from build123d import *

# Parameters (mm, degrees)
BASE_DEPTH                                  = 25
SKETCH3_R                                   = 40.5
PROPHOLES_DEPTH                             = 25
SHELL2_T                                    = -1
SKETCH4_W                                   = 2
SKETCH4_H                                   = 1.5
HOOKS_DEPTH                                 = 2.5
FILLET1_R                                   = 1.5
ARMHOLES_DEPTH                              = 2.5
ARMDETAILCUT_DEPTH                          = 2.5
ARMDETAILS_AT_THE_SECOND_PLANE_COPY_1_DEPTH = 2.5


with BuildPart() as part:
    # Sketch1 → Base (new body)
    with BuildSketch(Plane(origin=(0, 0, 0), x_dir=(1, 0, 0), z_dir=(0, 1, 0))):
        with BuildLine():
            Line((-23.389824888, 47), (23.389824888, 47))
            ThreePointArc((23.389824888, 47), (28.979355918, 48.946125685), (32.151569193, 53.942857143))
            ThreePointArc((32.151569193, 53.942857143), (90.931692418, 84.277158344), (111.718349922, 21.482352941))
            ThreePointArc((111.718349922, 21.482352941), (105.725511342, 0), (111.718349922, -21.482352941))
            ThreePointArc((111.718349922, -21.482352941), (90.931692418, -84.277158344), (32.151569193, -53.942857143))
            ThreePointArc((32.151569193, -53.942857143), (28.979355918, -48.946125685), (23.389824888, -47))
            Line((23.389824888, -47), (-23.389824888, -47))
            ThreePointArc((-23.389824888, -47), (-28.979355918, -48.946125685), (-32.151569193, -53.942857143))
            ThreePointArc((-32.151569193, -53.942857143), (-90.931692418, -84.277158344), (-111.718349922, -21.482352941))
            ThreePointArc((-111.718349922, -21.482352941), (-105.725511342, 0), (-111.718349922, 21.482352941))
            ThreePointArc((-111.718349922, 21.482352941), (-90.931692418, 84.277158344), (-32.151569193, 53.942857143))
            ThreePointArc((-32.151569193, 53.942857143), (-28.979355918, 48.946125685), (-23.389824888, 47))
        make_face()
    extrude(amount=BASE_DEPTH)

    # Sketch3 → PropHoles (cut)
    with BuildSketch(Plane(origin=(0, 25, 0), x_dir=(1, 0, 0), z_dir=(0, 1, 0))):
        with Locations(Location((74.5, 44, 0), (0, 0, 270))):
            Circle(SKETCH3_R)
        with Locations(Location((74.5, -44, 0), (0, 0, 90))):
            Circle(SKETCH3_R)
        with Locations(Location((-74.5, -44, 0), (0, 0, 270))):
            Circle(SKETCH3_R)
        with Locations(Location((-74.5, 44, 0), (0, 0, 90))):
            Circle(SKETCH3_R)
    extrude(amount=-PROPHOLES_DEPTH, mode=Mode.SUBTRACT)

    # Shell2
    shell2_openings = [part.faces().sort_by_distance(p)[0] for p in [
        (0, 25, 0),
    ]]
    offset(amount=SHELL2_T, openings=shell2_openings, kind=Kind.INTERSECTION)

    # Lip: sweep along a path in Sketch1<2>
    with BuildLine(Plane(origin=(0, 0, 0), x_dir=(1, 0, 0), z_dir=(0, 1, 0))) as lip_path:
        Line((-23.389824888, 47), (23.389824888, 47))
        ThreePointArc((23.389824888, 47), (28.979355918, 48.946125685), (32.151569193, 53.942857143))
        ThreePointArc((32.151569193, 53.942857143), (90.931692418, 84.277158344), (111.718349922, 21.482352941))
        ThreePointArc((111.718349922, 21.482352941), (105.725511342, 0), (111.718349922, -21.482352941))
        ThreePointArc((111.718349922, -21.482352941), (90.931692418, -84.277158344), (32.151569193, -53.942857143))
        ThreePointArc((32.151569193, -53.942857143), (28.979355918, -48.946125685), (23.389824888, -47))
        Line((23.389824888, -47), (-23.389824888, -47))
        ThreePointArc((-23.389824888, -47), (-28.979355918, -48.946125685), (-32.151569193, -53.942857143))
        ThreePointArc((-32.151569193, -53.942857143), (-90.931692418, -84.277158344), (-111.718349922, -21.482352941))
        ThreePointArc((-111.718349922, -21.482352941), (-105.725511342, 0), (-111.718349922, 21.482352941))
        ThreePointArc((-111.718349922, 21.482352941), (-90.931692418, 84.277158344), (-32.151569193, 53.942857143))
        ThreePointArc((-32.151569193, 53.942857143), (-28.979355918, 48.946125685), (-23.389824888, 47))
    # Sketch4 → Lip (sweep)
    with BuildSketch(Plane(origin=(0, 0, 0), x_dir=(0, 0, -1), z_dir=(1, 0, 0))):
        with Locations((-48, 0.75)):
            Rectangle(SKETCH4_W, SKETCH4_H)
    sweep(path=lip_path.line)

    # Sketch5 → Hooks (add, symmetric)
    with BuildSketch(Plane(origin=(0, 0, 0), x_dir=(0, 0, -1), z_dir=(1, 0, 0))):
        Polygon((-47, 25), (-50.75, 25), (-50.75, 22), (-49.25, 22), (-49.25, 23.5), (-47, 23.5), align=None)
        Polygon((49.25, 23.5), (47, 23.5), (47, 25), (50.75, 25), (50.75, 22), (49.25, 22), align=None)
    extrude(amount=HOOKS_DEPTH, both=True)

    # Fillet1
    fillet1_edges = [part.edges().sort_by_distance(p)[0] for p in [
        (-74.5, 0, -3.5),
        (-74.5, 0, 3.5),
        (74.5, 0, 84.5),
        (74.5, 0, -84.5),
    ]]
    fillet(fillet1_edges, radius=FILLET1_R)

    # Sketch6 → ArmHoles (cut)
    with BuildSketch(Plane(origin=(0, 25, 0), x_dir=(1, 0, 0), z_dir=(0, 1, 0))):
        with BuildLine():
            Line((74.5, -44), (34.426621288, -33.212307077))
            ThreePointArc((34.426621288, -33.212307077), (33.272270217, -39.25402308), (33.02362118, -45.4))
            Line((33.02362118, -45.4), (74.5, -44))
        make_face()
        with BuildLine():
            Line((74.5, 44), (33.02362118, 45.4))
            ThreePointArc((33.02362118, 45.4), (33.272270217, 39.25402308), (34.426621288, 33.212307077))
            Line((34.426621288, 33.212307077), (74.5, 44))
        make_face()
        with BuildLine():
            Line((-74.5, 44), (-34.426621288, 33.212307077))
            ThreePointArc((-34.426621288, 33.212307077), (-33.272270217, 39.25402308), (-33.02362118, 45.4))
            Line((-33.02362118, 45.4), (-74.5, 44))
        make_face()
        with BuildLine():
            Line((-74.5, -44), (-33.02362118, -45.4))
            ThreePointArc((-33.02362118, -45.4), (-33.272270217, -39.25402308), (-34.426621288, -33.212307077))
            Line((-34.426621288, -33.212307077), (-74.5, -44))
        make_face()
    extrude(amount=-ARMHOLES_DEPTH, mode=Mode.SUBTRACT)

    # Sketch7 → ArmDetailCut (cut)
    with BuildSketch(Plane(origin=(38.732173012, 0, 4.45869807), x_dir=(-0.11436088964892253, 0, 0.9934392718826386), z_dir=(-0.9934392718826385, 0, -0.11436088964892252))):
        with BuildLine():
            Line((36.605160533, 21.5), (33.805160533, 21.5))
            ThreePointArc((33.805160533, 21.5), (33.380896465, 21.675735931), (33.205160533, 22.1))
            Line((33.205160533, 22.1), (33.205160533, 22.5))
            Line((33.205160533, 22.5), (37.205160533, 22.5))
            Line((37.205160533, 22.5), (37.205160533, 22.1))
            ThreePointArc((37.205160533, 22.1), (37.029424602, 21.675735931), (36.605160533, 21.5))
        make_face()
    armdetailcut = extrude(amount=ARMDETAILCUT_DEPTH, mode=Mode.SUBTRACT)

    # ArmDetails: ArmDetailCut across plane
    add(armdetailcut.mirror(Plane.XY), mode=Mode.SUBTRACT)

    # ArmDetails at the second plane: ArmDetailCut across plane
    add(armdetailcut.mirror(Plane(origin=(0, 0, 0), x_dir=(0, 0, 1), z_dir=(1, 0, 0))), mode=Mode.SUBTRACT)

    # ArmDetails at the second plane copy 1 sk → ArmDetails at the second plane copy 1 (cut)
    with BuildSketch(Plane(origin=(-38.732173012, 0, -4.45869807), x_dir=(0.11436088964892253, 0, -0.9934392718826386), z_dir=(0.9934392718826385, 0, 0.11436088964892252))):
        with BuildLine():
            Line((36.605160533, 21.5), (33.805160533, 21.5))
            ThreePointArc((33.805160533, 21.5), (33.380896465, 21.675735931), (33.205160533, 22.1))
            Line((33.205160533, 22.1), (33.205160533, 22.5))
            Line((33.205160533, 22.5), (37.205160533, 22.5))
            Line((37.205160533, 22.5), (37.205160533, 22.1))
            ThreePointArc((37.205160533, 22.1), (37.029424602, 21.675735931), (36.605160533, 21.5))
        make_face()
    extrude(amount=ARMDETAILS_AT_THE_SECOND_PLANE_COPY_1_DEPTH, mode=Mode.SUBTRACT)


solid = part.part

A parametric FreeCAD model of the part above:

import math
import FreeCAD as App
import Part
import Sketcher

V = App.Vector
Q = App.Units.Quantity


def edges_at(feature, points):
    """Names of the edges that pass closest to the given points."""
    edges = feature.Shape.Edges
    near = lambda p: min(range(len(edges)), key=lambda i: edges[i].distToShape(Part.Vertex(*p))[0])
    return sorted({f"Edge{near(p) + 1}" for p in points})


def faces_at(feature, points):
    """Names of the faces that lie closest to the given points."""
    faces = feature.Shape.Faces
    near = lambda p: min(range(len(faces)), key=lambda i: faces[i].distToShape(Part.Vertex(*p))[0])
    return sorted({f"Face{near(p) + 1}" for p in points})


def add_polygon(sketch, points):
    """Adds a closed chain of lines whose ends are joined by coincident constraints."""
    first, n = sketch.GeometryCount, len(points)
    for a, b in zip(points, points[1:] + points[:1]):
        sketch.addGeometry(Part.LineSegment(App.Vector(*a, 0), App.Vector(*b, 0)), False)
    for i in range(n):
        sketch.addConstraint(Sketcher.Constraint("Coincident", first + i, 2, first + (i + 1) % n, 1))

doc = App.newDocument("Part")
body = doc.addObject("PartDesign::Body", "Body")

# Sketch on XZ plane
sketch1 = doc.addObject("Sketcher::SketchObject", "Sketch")
body.addObject(sketch1)
sketch1.AttachmentSupport = (doc.XZ_Plane, [""])
sketch1.MapMode = "FlatFace"
sketch1.addGeometry([
    Part.LineSegment(V(23.389825, -47, 0), V(-23.389825, -47, 0)),  # 0
    Part.ArcOfCircle(Part.Circle(V(-23.389825, -56, 0), V(0, 0, 1), 9), math.radians(90), math.radians(166.78702)),  # 1
    Part.ArcOfCircle(Part.Circle(V(-74.5, -44, 0), V(0, 0, 1), 43.5), math.radians(148.825447), math.radians(346.78702)),  # 2
    Part.ArcOfCircle(Part.Circle(V(-147.225511, 0, 0), V(0, 0, 1), 41.5), math.radians(-31.174553), math.radians(31.174553)),  # 3
    Part.ArcOfCircle(Part.Circle(V(-74.5, 44, 0), V(0, 0, 1), 43.5), math.radians(13.21298), math.radians(211.174553)),  # 4
    Part.ArcOfCircle(Part.Circle(V(-23.389825, 56, 0), V(0, 0, 1), 9), math.radians(-166.78702), math.radians(-90)),  # 5
    Part.LineSegment(V(-23.389825, 47, 0), V(23.389825, 47, 0)),  # 6
    Part.ArcOfCircle(Part.Circle(V(23.389825, 56, 0), V(0, 0, 1), 9), math.radians(-90), math.radians(-13.21298)),  # 7
    Part.ArcOfCircle(Part.Circle(V(74.5, 44, 0), V(0, 0, 1), 43.5), math.radians(-31.174553), math.radians(166.78702)),  # 8
    Part.ArcOfCircle(Part.Circle(V(147.225511, 0, 0), V(0, 0, 1), 41.5), math.radians(148.825447), math.radians(211.174553)),  # 9
    Part.ArcOfCircle(Part.Circle(V(74.5, -44, 0), V(0, 0, 1), 43.5), math.radians(-166.78702), math.radians(31.174553)),  # 10
    Part.ArcOfCircle(Part.Circle(V(23.389825, -56, 0), V(0, 0, 1), 9), math.radians(13.21298), math.radians(90)),  # 11
], False)
sketch1.addConstraint([
    Sketcher.Constraint("Tangent", 0, 2, 1, 1),
    Sketcher.Constraint("Tangent", 1, 2, 2, 2),
    Sketcher.Constraint("Tangent", 2, 1, 3, 1),
    Sketcher.Constraint("Tangent", 3, 2, 4, 2),
    Sketcher.Constraint("Tangent", 4, 1, 5, 1),
    Sketcher.Constraint("Tangent", 5, 2, 6, 1),
    Sketcher.Constraint("Tangent", 6, 2, 7, 1),
    Sketcher.Constraint("Tangent", 7, 2, 8, 2),
    Sketcher.Constraint("Tangent", 8, 1, 9, 1),
    Sketcher.Constraint("Tangent", 9, 2, 10, 2),
    Sketcher.Constraint("Tangent", 10, 1, 11, 1),
    Sketcher.Constraint("Tangent", 11, 2, 0, 1),
    Sketcher.Constraint("Horizontal", 0),
    Sketcher.Constraint("Horizontal", 6),
    Sketcher.Constraint("Equal", 2, 4),
    Sketcher.Constraint("Equal", 1, 5),
    Sketcher.Constraint("Equal", 5, 7),
    Sketcher.Constraint("Equal", 4, 8),
    Sketcher.Constraint("Equal", 3, 9),
    Sketcher.Constraint("Equal", 8, 10),
    Sketcher.Constraint("Equal", 7, 11),
    Sketcher.Constraint("Symmetric", 1, 3, 7, 3, -1, 1),
    Sketcher.Constraint("Symmetric", 3, 3, 9, 3, -1, 1),
    Sketcher.Constraint("Symmetric", 4, 3, 8, 3, -2),
    Sketcher.Constraint("Horizontal", 2, 3, 10, 3),
    Sketcher.Constraint("Radius", 1, Q("9 mm")),
    Sketcher.Constraint("Radius", 2, Q("43.5 mm")),
    Sketcher.Constraint("Radius", 3, Q("41.5 mm")),
    Sketcher.Constraint("DistanceY", 1, 3, -1, 1, Q("56 mm")),
    Sketcher.Constraint("DistanceY", 2, 3, -1, 1, Q("44 mm")),
    Sketcher.Constraint("DistanceX", 4, 3, 8, 3, Q("149 mm")),
])
pad1 = doc.addObject("PartDesign::Pad", "Pad")
body.addObject(pad1)
pad1.Profile = sketch1
pad1.Length = 25
pad1.Reversed = True

# Sketch on XZ plane
sketch2 = doc.addObject("Sketcher::SketchObject", "Sketch001")
body.addObject(sketch2)
sketch2.AttachmentSupport = (doc.XZ_Plane, [""])
sketch2.MapMode = "FlatFace"
sketch2.AttachmentOffset = App.Placement(V(0, 0, -25), App.Rotation())
sketch2.addGeometry([
    Part.Circle(V(74.5, -44, 0), V(0, 0, 1), 40.5),
    Part.Circle(V(74.5, 44, 0), V(0, 0, 1), 40.5),
    Part.Circle(V(-74.5, 44, 0), V(0, 0, 1), 40.5),
    Part.Circle(V(-74.5, -44, 0), V(0, 0, 1), 40.5),
], False)
sketch2.addConstraint([
    Sketcher.Constraint("Equal", 0, 1),
    Sketcher.Constraint("Equal", 1, 2),
    Sketcher.Constraint("Equal", 2, 3),
    Sketcher.Constraint("Symmetric", 0, 3, 2, 3, -1, 1),
    Sketcher.Constraint("Symmetric", 1, 3, 3, 3, -1, 1),
    Sketcher.Constraint("Symmetric", 1, 3, 2, 3, -2),
    Sketcher.Constraint("Diameter", 0, Q("81 mm")),
    Sketcher.Constraint("DistanceY", 0, 3, -1, 1, Q("44 mm")),
    Sketcher.Constraint("DistanceX", 2, 3, 1, 3, Q("149 mm")),
])
pocket1 = doc.addObject("PartDesign::Pocket", "Pocket")
body.addObject(pocket1)
pocket1.Profile = sketch2
pocket1.Length = 25
pocket1.Reversed = True
doc.recompute()

thickness = doc.addObject("PartDesign::Thickness", "Thickness")
body.addObject(thickness)
thickness.Base = (pocket1, faces_at(pocket1, [(0, 25, 0)]))
thickness.Value = 1
thickness.Reversed = True
thickness.Join = "Intersection"

# Sketch on YZ plane
sketch3 = doc.addObject("Sketcher::SketchObject", "Sketch002")
body.addObject(sketch3)
sketch3.AttachmentSupport = (doc.YZ_Plane, [""])
sketch3.MapMode = "FlatFace"
add_polygon(sketch3, [(1.5, 49), (0, 49), (0, 47), (1.5, 47)])  # lines 0-3
sketch3.addConstraint([
    Sketcher.Constraint("Horizontal", 0),
    Sketcher.Constraint("Vertical", 1),
    Sketcher.Constraint("Horizontal", 2),
    Sketcher.Constraint("Vertical", 3),
    Sketcher.Constraint("PointOnObject", 0, 2, -2),
    Sketcher.Constraint("DistanceY", 1, 2, 1, 1, Q("2 mm")),
    Sketcher.Constraint("DistanceX", 0, 2, 0, 1, Q("1.5 mm")),
    Sketcher.Constraint("DistanceY", -1, 1, 0, 2, Q("49 mm")),
])

# Sketch on XZ plane
sketch4 = doc.addObject("Sketcher::SketchObject", "Sketch003")
body.addObject(sketch4)
sketch4.AttachmentSupport = (doc.XZ_Plane, [""])
sketch4.MapMode = "FlatFace"
sketch4.addGeometry([
    Part.LineSegment(V(-23.389825, -47, 0), V(23.389825, -47, 0)),  # 0
    Part.ArcOfCircle(Part.Circle(V(23.389825, -56, 0), V(0, 0, 1), 9), math.radians(13.21298), math.radians(90)),  # 1
    Part.ArcOfCircle(Part.Circle(V(74.5, -44, 0), V(0, 0, 1), 43.5), math.radians(-166.78702), math.radians(31.174553)),  # 2
    Part.ArcOfCircle(Part.Circle(V(147.225511, 0, 0), V(0, 0, 1), 41.5), math.radians(148.825447), math.radians(211.174553)),  # 3
    Part.ArcOfCircle(Part.Circle(V(74.5, 44, 0), V(0, 0, 1), 43.5), math.radians(-31.174553), math.radians(166.78702)),  # 4
    Part.ArcOfCircle(Part.Circle(V(23.389825, 56, 0), V(0, 0, 1), 9), math.radians(-90), math.radians(-13.21298)),  # 5
    Part.LineSegment(V(23.389825, 47, 0), V(-23.389825, 47, 0)),  # 6
    Part.ArcOfCircle(Part.Circle(V(-23.389825, 56, 0), V(0, 0, 1), 9), math.radians(-166.78702), math.radians(-90)),  # 7
    Part.ArcOfCircle(Part.Circle(V(-74.5, 44, 0), V(0, 0, 1), 43.5), math.radians(13.21298), math.radians(211.174553)),  # 8
    Part.ArcOfCircle(Part.Circle(V(-147.225511, 0, 0), V(0, 0, 1), 41.5), math.radians(-31.174553), math.radians(31.174553)),  # 9
    Part.ArcOfCircle(Part.Circle(V(-74.5, -44, 0), V(0, 0, 1), 43.5), math.radians(148.825447), math.radians(346.78702)),  # 10
    Part.ArcOfCircle(Part.Circle(V(-23.389825, -56, 0), V(0, 0, 1), 9), math.radians(90), math.radians(166.78702)),  # 11
], False)
sketch4.addConstraint([
    Sketcher.Constraint("Tangent", 0, 2, 1, 2),
    Sketcher.Constraint("Tangent", 1, 1, 2, 1),
    Sketcher.Constraint("Tangent", 2, 2, 3, 2),
    Sketcher.Constraint("Tangent", 3, 1, 4, 1),
    Sketcher.Constraint("Tangent", 4, 2, 5, 2),
    Sketcher.Constraint("Tangent", 5, 1, 6, 1),
    Sketcher.Constraint("Tangent", 6, 2, 7, 2),
    Sketcher.Constraint("Tangent", 7, 1, 8, 1),
    Sketcher.Constraint("Tangent", 8, 2, 9, 2),
    Sketcher.Constraint("Tangent", 9, 1, 10, 1),
    Sketcher.Constraint("Tangent", 10, 2, 11, 2),
    Sketcher.Constraint("Tangent", 11, 1, 0, 1),
    Sketcher.Constraint("Horizontal", 0),
    Sketcher.Constraint("Horizontal", 6),
    Sketcher.Constraint("Equal", 2, 4),
    Sketcher.Constraint("Equal", 1, 5),
    Sketcher.Constraint("Equal", 5, 7),
    Sketcher.Constraint("Equal", 4, 8),
    Sketcher.Constraint("Equal", 3, 9),
    Sketcher.Constraint("Equal", 8, 10),
    Sketcher.Constraint("Equal", 7, 11),
    Sketcher.Constraint("Symmetric", 1, 3, 7, 3, -1, 1),
    Sketcher.Constraint("Symmetric", 3, 3, 9, 3, -1, 1),
    Sketcher.Constraint("Symmetric", 4, 3, 8, 3, -2),
    Sketcher.Constraint("Horizontal", 2, 3, 10, 3),
    Sketcher.Constraint("Radius", 1, Q("9 mm")),
    Sketcher.Constraint("Radius", 2, Q("43.5 mm")),
    Sketcher.Constraint("Radius", 3, Q("41.5 mm")),
    Sketcher.Constraint("DistanceY", 1, 3, -1, 1, Q("56 mm")),
    Sketcher.Constraint("DistanceY", 2, 3, -1, 1, Q("44 mm")),
    Sketcher.Constraint("DistanceX", 8, 3, 4, 3, Q("149 mm")),
])
doc.recompute()

additivepipe = doc.addObject("PartDesign::AdditivePipe", "AdditivePipe")
body.addObject(additivepipe)
additivepipe.Profile = sketch3
additivepipe.Spine = (sketch4, ["Edge1", "Edge2", "Edge3", "Edge4", "Edge5", "Edge6", "Edge7", "Edge8", "Edge9", "Edge10", "Edge11", "Edge12"])

# Sketch on YZ plane
sketch5 = doc.addObject("Sketcher::SketchObject", "Sketch004")
body.addObject(sketch5)
sketch5.AttachmentSupport = (doc.YZ_Plane, [""])
sketch5.MapMode = "FlatFace"
add_polygon(sketch5, [(25, 47), (25, 50.75), (22, 50.75), (22, 49.25), (23.5, 49.25), (23.5, 47)])  # lines 0-5
add_polygon(sketch5, [(23.5, -47), (23.5, -49.25), (22, -49.25), (22, -50.75), (25, -50.75), (25, -47)])  # lines 6-11
sketch5.addConstraint([
    Sketcher.Constraint("Vertical", 0),
    Sketcher.Constraint("Horizontal", 1),
    Sketcher.Constraint("Vertical", 2),
    Sketcher.Constraint("Horizontal", 3),
    Sketcher.Constraint("Vertical", 4),
    Sketcher.Constraint("Horizontal", 5),
    Sketcher.Constraint("Vertical", 6),
    Sketcher.Constraint("Horizontal", 7),
    Sketcher.Constraint("Vertical", 8),
    Sketcher.Constraint("Horizontal", 9),
    Sketcher.Constraint("Vertical", 10),
    Sketcher.Constraint("Horizontal", 11),
    Sketcher.Constraint("Symmetric", 3, 2, 6, 2, -1),
    Sketcher.Constraint("Symmetric", 1, 2, 8, 2, -1),
    Sketcher.Constraint("Symmetric", 5, 2, 10, 2, -1),
    Sketcher.Constraint("Equal", 3, 5),
    Sketcher.Constraint("Equal", 11, 2),
    Sketcher.Constraint("DistanceX", 1, 2, 1, 1, Q("3 mm")),
    Sketcher.Constraint("DistanceX", -1, 1, 0, 2, Q("25 mm")),
    Sketcher.Constraint("DistanceY", -1, 1, 4, 2, Q("47 mm")),
    Sketcher.Constraint("DistanceY", 6, 2, 0, 2, Q("100 mm")),
])
pad2 = doc.addObject("PartDesign::Pad", "Pad001")
body.addObject(pad2)
pad2.Profile = sketch5
pad2.Length = 5
pad2.Midplane = True
doc.recompute()

fillet = doc.addObject("PartDesign::Fillet", "Fillet")
body.addObject(fillet)
fillet.Base = (pad2, edges_at(pad2, [
    (-74.5, 0, -3.5),
    (-74.5, 0, 3.5),
    (74.5, 0, 84.5),
    (74.5, 0, -84.5),
]))
fillet.Radius = 1.5

# Sketch on XZ plane
sketch6 = doc.addObject("Sketcher::SketchObject", "Sketch005")
body.addObject(sketch6)
sketch6.AttachmentSupport = (doc.XZ_Plane, [""])
sketch6.MapMode = "FlatFace"
sketch6.AttachmentOffset = App.Placement(V(0, 0, -25), App.Rotation())
sketch6.addGeometry([
    Part.LineSegment(V(74.5, 44, 0), V(34.426621, 33.212307, 0)),  # 0
    Part.ArcOfCircle(Part.Circle(V(74.5, 44, 0), V(0, 0, 1), 41.5), math.radians(178.066764), math.radians(195.066764)),  # 1
    Part.LineSegment(V(33.023621, 45.4, 0), V(74.5, 44, 0)),  # 2
    Part.LineSegment(V(74.5, -44, 0), V(33.023621, -45.4, 0)),  # 3
    Part.ArcOfCircle(Part.Circle(V(74.5, -44, 0), V(0, 0, 1), 41.5), math.radians(164.933236), math.radians(181.933236)),  # 4
    Part.LineSegment(V(34.426621, -33.212307, 0), V(74.5, -44, 0)),  # 5
    Part.LineSegment(V(-74.5, -44, 0), V(-34.426621, -33.212307, 0)),  # 6
    Part.ArcOfCircle(Part.Circle(V(-74.5, -44, 0), V(0, 0, 1), 41.5), math.radians(-1.933236), math.radians(15.066764)),  # 7
    Part.LineSegment(V(-33.023621, -45.4, 0), V(-74.5, -44, 0)),  # 8
    Part.LineSegment(V(-74.5, 44, 0), V(-33.023621, 45.4, 0)),  # 9
    Part.ArcOfCircle(Part.Circle(V(-74.5, 44, 0), V(0, 0, 1), 41.5), math.radians(-15.066764), math.radians(1.933236)),  # 10
    Part.LineSegment(V(-34.426621, 33.212307, 0), V(-74.5, 44, 0)),  # 11
], False)
sketch6.addConstraint([
    Sketcher.Constraint("Coincident", 0, 2, 1, 2),
    Sketcher.Constraint("Coincident", 1, 1, 2, 1),
    Sketcher.Constraint("Coincident", 2, 2, 0, 1),
    Sketcher.Constraint("Coincident", 3, 2, 4, 2),
    Sketcher.Constraint("Coincident", 4, 1, 5, 1),
    Sketcher.Constraint("Coincident", 5, 2, 3, 1),
    Sketcher.Constraint("Coincident", 6, 2, 7, 2),
    Sketcher.Constraint("Coincident", 7, 1, 8, 1),
    Sketcher.Constraint("Coincident", 8, 2, 6, 1),
    Sketcher.Constraint("Coincident", 9, 2, 10, 2),
    Sketcher.Constraint("Coincident", 10, 1, 11, 1),
    Sketcher.Constraint("Coincident", 11, 2, 9, 1),
    Sketcher.Constraint("Coincident", 2, 2, 1, 3),
    Sketcher.Constraint("Coincident", 5, 2, 4, 3),
    Sketcher.Constraint("Coincident", 8, 2, 7, 3),
    Sketcher.Constraint("Coincident", 11, 2, 10, 3),
    Sketcher.Constraint("Equal", 1, 4),
    Sketcher.Constraint("Equal", 4, 7),
    Sketcher.Constraint("Equal", 7, 10),
    Sketcher.Constraint("Symmetric", 1, 3, 7, 3, -1, 1),
    Sketcher.Constraint("Symmetric", 4, 3, 10, 3, -1, 1),
    Sketcher.Constraint("Symmetric", 4, 3, 7, 3, -2),
    Sketcher.Constraint("Parallel", 0, 6),
    Sketcher.Constraint("Parallel", 2, 8),
    Sketcher.Constraint("Parallel", 3, 9),
    Sketcher.Constraint("Parallel", 5, 11),
    Sketcher.Constraint("Horizontal", 4, 1, 6, 2),
    Sketcher.Constraint("Horizontal", 3, 2, 7, 1),
    Sketcher.Constraint("Radius", 1, Q("41.5 mm")),
    Sketcher.Constraint("DistanceY", -1, 1, 1, 3, Q("44 mm")),
    Sketcher.Constraint("DistanceX", 7, 3, 4, 3, Q("149 mm")),
    Sketcher.Constraint("DistanceY", -1, 1, 1, 1, Q("45.4 mm")),
    Sketcher.Constraint("DistanceX", 1, 1, 0, 2, Q("1.403 mm")),
])
pocket2 = doc.addObject("PartDesign::Pocket", "Pocket001")
body.addObject(pocket2)
pocket2.Profile = sketch6
pocket2.Length = 2.5
pocket2.Reversed = True

# Sketch on an angled plane
sketch7 = doc.addObject("Sketcher::SketchObject", "Sketch006")
body.addObject(sketch7)
sketch7.Placement = App.Placement(V(38.732173, 0, 4.458698), App.Rotation(V(-0.11436089, 0, 0.993439272), V(0, 1, 0), V(-0.993439272, 0, -0.11436089), "ZXY"))
sketch7.addGeometry([
    Part.LineSegment(V(33.805161, 21.5, 0), V(36.605161, 21.5, 0)),  # 0
    Part.ArcOfCircle(Part.Circle(V(36.605161, 22.1, 0), V(0, 0, 1), 0.6), math.radians(-90), math.radians(0)),  # 1
    Part.LineSegment(V(37.205161, 22.1, 0), V(37.205161, 22.5, 0)),  # 2
    Part.LineSegment(V(37.205161, 22.5, 0), V(33.205161, 22.5, 0)),  # 3
    Part.LineSegment(V(33.205161, 22.5, 0), V(33.205161, 22.1, 0)),  # 4
    Part.ArcOfCircle(Part.Circle(V(33.805161, 22.1, 0), V(0, 0, 1), 0.6), math.radians(-180), math.radians(-90)),  # 5
], False)
sketch7.addConstraint([
    Sketcher.Constraint("Tangent", 0, 2, 1, 1),
    Sketcher.Constraint("Tangent", 1, 2, 2, 1),
    Sketcher.Constraint("Coincident", 2, 2, 3, 1),
    Sketcher.Constraint("Coincident", 3, 2, 4, 1),
    Sketcher.Constraint("Tangent", 4, 2, 5, 1),
    Sketcher.Constraint("Tangent", 5, 2, 0, 1),
    Sketcher.Constraint("Horizontal", 0),
    Sketcher.Constraint("Vertical", 2),
    Sketcher.Constraint("Horizontal", 3),
    Sketcher.Constraint("Vertical", 4),
    Sketcher.Constraint("Equal", 1, 5),
    Sketcher.Constraint("Radius", 1, Q("0.6 mm")),
    Sketcher.Constraint("DistanceX", 3, 2, 3, 1, Q("4 mm")),
    Sketcher.Constraint("DistanceY", 2, 1, 2, 2, Q("0.4 mm")),
    Sketcher.Constraint("DistanceY", -1, 1, 1, 3, Q("22.1 mm")),
    Sketcher.Constraint("DistanceX", -1, 1, 1, 3, Q("36.605161 mm")),
])
pocket3 = doc.addObject("PartDesign::Pocket", "Pocket002")
body.addObject(pocket3)
pocket3.Profile = sketch7
pocket3.Length = 2.5
pocket3.Reversed = True
doc.recompute()

mirrored = doc.addObject("PartDesign::Mirrored", "Mirrored")
body.addObject(mirrored)
mirrored.Originals = [pocket3]
mirrored.MirrorPlane = (doc.XY_Plane, [""])
body.Tip = mirrored
doc.recompute()

mirrored2 = doc.addObject("PartDesign::Mirrored", "Mirrored001")
body.addObject(mirrored2)
mirrored2.Originals = [pocket3]
mirrored2.MirrorPlane = (doc.YZ_Plane, [""])
body.Tip = mirrored2

# Sketch on an angled plane
sketch8 = doc.addObject("Sketcher::SketchObject", "Sketch007")
body.addObject(sketch8)
sketch8.Placement = App.Placement(V(-38.732173, 0, -4.458698), App.Rotation(V(0.11436089, 0, -0.993439272), V(0, 1, 0), V(0.993439272, 0, 0.11436089), "ZXY"))
sketch8.addGeometry([
    Part.LineSegment(V(33.805161, 21.5, 0), V(36.605161, 21.5, 0)),  # 0
    Part.ArcOfCircle(Part.Circle(V(36.605161, 22.1, 0), V(0, 0, 1), 0.6), math.radians(-90), math.radians(0)),  # 1
    Part.LineSegment(V(37.205161, 22.1, 0), V(37.205161, 22.5, 0)),  # 2
    Part.LineSegment(V(37.205161, 22.5, 0), V(33.205161, 22.5, 0)),  # 3
    Part.LineSegment(V(33.205161, 22.5, 0), V(33.205161, 22.1, 0)),  # 4
    Part.ArcOfCircle(Part.Circle(V(33.805161, 22.1, 0), V(0, 0, 1), 0.6), math.radians(-180), math.radians(-90)),  # 5
], False)
sketch8.addConstraint([
    Sketcher.Constraint("Tangent", 0, 2, 1, 1),
    Sketcher.Constraint("Tangent", 1, 2, 2, 1),
    Sketcher.Constraint("Coincident", 2, 2, 3, 1),
    Sketcher.Constraint("Coincident", 3, 2, 4, 1),
    Sketcher.Constraint("Tangent", 4, 2, 5, 1),
    Sketcher.Constraint("Tangent", 5, 2, 0, 1),
    Sketcher.Constraint("Horizontal", 0),
    Sketcher.Constraint("Vertical", 2),
    Sketcher.Constraint("Horizontal", 3),
    Sketcher.Constraint("Vertical", 4),
    Sketcher.Constraint("Equal", 1, 5),
    Sketcher.Constraint("Radius", 1, Q("0.6 mm")),
    Sketcher.Constraint("DistanceX", 3, 2, 3, 1, Q("4 mm")),
    Sketcher.Constraint("DistanceY", 2, 1, 2, 2, Q("0.4 mm")),
    Sketcher.Constraint("DistanceY", -1, 1, 1, 3, Q("22.1 mm")),
    Sketcher.Constraint("DistanceX", -1, 1, 1, 3, Q("36.605161 mm")),
])
pocket4 = doc.addObject("PartDesign::Pocket", "Pocket003")
body.addObject(pocket4)
pocket4.Profile = sketch8
pocket4.Length = 2.5
pocket4.Reversed = True

doc.recompute()
